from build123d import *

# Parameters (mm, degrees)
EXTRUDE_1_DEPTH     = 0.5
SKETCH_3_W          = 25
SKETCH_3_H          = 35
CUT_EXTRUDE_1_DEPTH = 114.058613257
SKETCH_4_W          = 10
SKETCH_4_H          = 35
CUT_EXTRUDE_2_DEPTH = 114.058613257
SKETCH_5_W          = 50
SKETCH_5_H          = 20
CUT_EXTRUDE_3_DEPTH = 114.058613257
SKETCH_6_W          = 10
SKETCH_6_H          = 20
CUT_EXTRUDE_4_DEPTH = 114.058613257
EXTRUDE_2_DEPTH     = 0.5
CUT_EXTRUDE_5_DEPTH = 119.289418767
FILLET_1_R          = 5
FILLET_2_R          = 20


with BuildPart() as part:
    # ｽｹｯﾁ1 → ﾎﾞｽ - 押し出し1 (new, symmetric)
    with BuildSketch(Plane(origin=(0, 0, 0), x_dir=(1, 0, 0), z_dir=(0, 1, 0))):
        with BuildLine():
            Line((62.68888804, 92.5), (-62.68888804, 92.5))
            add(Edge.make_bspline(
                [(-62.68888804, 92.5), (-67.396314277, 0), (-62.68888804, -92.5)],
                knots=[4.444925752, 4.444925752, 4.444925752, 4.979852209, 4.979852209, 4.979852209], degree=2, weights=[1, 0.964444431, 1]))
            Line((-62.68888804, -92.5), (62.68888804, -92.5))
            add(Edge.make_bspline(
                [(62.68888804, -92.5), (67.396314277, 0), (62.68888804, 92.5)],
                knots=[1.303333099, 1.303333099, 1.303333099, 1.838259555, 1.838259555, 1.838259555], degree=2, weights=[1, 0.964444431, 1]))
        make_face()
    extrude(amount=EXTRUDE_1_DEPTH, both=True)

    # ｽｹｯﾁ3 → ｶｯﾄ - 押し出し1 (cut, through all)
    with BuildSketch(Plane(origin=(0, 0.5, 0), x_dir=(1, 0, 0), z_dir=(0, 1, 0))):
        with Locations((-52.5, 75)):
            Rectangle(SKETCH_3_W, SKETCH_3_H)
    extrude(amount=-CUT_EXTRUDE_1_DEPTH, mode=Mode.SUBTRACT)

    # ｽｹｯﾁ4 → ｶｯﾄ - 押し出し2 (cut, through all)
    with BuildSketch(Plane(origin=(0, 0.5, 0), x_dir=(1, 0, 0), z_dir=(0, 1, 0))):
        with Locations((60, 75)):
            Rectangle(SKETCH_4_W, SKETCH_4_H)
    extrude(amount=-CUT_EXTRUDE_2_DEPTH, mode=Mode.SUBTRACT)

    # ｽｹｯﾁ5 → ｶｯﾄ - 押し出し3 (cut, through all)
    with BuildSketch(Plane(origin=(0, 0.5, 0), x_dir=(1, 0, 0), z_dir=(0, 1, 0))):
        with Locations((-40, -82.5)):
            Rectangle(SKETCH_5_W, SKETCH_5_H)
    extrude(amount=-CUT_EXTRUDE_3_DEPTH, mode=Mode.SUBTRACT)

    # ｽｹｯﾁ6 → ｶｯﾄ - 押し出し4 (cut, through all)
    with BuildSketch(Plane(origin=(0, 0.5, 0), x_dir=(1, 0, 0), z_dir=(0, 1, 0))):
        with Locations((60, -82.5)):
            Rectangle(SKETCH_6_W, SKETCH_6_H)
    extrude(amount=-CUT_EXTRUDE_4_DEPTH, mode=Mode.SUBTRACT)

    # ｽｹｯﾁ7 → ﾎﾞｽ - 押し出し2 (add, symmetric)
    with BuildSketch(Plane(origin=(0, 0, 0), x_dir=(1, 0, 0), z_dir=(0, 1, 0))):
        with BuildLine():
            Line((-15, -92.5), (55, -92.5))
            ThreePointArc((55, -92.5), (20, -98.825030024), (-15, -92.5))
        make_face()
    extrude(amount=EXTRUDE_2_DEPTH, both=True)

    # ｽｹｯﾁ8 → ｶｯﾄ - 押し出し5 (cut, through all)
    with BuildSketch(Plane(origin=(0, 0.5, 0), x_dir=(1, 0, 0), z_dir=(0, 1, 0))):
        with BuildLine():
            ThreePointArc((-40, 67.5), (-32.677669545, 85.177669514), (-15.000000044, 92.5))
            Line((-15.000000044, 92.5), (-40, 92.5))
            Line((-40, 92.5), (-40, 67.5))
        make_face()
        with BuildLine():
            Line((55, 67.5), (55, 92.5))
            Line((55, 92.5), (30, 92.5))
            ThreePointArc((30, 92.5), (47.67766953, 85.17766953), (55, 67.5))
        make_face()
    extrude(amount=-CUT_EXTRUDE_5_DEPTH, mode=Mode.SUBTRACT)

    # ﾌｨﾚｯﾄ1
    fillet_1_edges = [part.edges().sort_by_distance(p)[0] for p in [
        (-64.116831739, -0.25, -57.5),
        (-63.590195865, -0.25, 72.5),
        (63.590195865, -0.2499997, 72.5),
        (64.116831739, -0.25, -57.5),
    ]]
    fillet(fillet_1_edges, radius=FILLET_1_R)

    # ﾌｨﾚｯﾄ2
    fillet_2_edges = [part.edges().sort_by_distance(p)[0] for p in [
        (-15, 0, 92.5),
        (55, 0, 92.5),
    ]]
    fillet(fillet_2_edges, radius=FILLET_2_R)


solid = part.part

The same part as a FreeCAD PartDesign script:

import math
import FreeCAD as App
import Part
import Sketcher
from FreeCAD import Vector
Q = App.Units.Quantity


def edges_at(feature, points):
    """Names of the edges that pass closest to the given points."""
    edges = feature.Shape.Edges
    near = lambda p: min(range(len(edges)), key=lambda i: edges[i].distToShape(Part.Vertex(*p))[0])
    return sorted({f"Edge{near(p) + 1}" for p in points})


def add_polygon(sketch, points):
    """Adds a closed chain of lines whose ends are joined by coincident constraints."""
    first, n = sketch.GeometryCount, len(points)
    for a, b in zip(points, points[1:] + points[:1]):
        sketch.addGeometry(Part.LineSegment(App.Vector(*a, 0), App.Vector(*b, 0)), False)
    for i in range(n):
        sketch.addConstraint(Sketcher.Constraint("Coincident", first + i, 2, first + (i + 1) % n, 1))

doc = App.newDocument("Part")
params = doc.addObject("Spreadsheet::Sheet", "Params")
for row, (alias, value) in enumerate([
    ("pad1_length", "1 mm"),
    ("sketch2_width", "25 mm"),
    ("sketch2_height", "35 mm"),
    ("sketch3_width", "10 mm"),
    ("sketch3_height", "35 mm"),
    ("sketch4_width", "50 mm"),
    ("sketch4_height", "20 mm"),
    ("sketch5_width", "10 mm"),
    ("sketch5_height", "20 mm"),
    ("sketch6_radius", "100 mm"),
    ("sketch6_width", "70 mm"),
    ("pad2_length", "1 mm"),
    ("sketch7_radius", "25 mm"),
    ("fillet_radius", "5 mm"),
    ("fillet2_radius", "20 mm"),
], start=1):
    params.set(f"A{row}", alias)
    params.set(f"B{row}", "=" + value)
    params.setAlias(f"B{row}", alias)

body = doc.addObject("PartDesign::Body", "Body")

sketch1 = body.newObject("Sketcher::SketchObject", "Sketch")
sketch1.AttachmentSupport = (doc.getObject("XZ_Plane"), [""])
sketch1.MapMode = "FlatFace"
sketch1.addGeometry([
    Part.LineSegment(Vector(62.688888, -92.5, 0), Vector(-62.688888, -92.5, 0)),
    Part.BSplineCurve([Vector(-62.688888, -92.5, 0), Vector(-67.396314, 0, 0), Vector(-62.688888, 92.5, 0)], [3, 3], [4.444925752, 4.979852209], False, 2, [1, 0.964444431, 1], False),
    Part.LineSegment(Vector(-62.688888, 92.5, 0), Vector(62.688888, 92.5, 0)),
    Part.BSplineCurve([Vector(62.688888, 92.5, 0), Vector(67.396314, 0, 0), Vector(62.688888, -92.5, 0)], [3, 3], [1.303333099, 1.838259555], False, 2, [1, 0.964444431, 1], False),
], False)
sketch1.addConstraint([
    Sketcher.Constraint("Block", 1),
    Sketcher.Constraint("Block", 3),
    Sketcher.Constraint("Coincident", 0, 2, 1, 1),
    Sketcher.Constraint("Coincident", 1, 2, 2, 1),
    Sketcher.Constraint("Coincident", 2, 2, 3, 1),
    Sketcher.Constraint("Coincident", 3, 2, 0, 1),
])
pad1 = body.newObject("PartDesign::Pad", "Pad")
pad1.Profile = sketch1
pad1.setExpression("Length", "Params.pad1_length")
pad1.Midplane = True

sketch2 = body.newObject("Sketcher::SketchObject", "Sketch001")
sketch2.AttachmentSupport = (doc.getObject("XZ_Plane"), [""])
sketch2.MapMode = "FlatFace"
sketch2.AttachmentOffset = App.Placement(Vector(0, 0, -0.5), App.Rotation())
add_polygon(sketch2, [(-65, -92), (-65, -58), (-40, -58), (-40, -92)])
sketch2.addConstraint([
    Sketcher.Constraint("Vertical", 0),
    Sketcher.Constraint("Horizontal", 1),
    Sketcher.Constraint("Vertical", 2),
    Sketcher.Constraint("Horizontal", 3),
    Sketcher.Constraint("DistanceX", 1, 1, 1, 2, Q("25 mm")),
    Sketcher.Constraint("DistanceY", 0, 1, 0, 2, Q("35 mm")),
    Sketcher.Constraint("DistanceX", 0, 2, -1, 1, Q("65 mm")),
    Sketcher.Constraint("DistanceY", 0, 2, -1, 1, Q("57.5 mm")),
])
sketch2.setExpression("Constraints[8]", "Params.sketch2_width")
sketch2.setExpression("Constraints[9]", "Params.sketch2_height")
pocket1 = body.newObject("PartDesign::Pocket", "Pocket")
pocket1.Profile = sketch2
pocket1.Type = "ThroughAll"
pocket1.Reversed = True

sketch3 = body.newObject("Sketcher::SketchObject", "Sketch002")
sketch3.AttachmentSupport = (doc.getObject("XZ_Plane"), [""])
sketch3.MapMode = "FlatFace"
sketch3.AttachmentOffset = App.Placement(Vector(0, 0, -0.5), App.Rotation())
add_polygon(sketch3, [(55, -92), (55, -58), (65, -58), (65, -92)])
sketch3.addConstraint([
    Sketcher.Constraint("Vertical", 0),
    Sketcher.Constraint("Horizontal", 1),
    Sketcher.Constraint("Vertical", 2),
    Sketcher.Constraint("Horizontal", 3),
    Sketcher.Constraint("DistanceX", 1, 1, 1, 2, Q("10 mm")),
    Sketcher.Constraint("DistanceY", 0, 1, 0, 2, Q("35 mm")),
    Sketcher.Constraint("DistanceX", -1, 1, 0, 2, Q("55 mm")),
    Sketcher.Constraint("DistanceY", 0, 2, -1, 1, Q("57.5 mm")),
])
sketch3.setExpression("Constraints[8]", "Params.sketch3_width")
sketch3.setExpression("Constraints[9]", "Params.sketch3_height")
pocket2 = body.newObject("PartDesign::Pocket", "Pocket001")
pocket2.Profile = sketch3
pocket2.Type = "ThroughAll"
pocket2.Reversed = True

sketch4 = body.newObject("Sketcher::SketchObject", "Sketch003")
sketch4.AttachmentSupport = (doc.getObject("XZ_Plane"), [""])
sketch4.MapMode = "FlatFace"
sketch4.AttachmentOffset = App.Placement(Vector(0, 0, -0.5), App.Rotation())
add_polygon(sketch4, [(-65, 72), (-65, 92), (-15, 92), (-15, 72)])
sketch4.addConstraint([
    Sketcher.Constraint("Vertical", 0),
    Sketcher.Constraint("Horizontal", 1),
    Sketcher.Constraint("Vertical", 2),
    Sketcher.Constraint("Horizontal", 3),
    Sketcher.Constraint("DistanceX", 1, 1, 1, 2, Q("50 mm")),
    Sketcher.Constraint("DistanceY", 0, 1, 0, 2, Q("20 mm")),
    Sketcher.Constraint("DistanceX", 0, 2, -1, 1, Q("65 mm")),
    Sketcher.Constraint("DistanceY", -1, 1, 0, 2, Q("92.5 mm")),
])
sketch4.setExpression("Constraints[8]", "Params.sketch4_width")
sketch4.setExpression("Constraints[9]", "Params.sketch4_height")
pocket3 = body.newObject("PartDesign::Pocket", "Pocket002")
pocket3.Profile = sketch4
pocket3.Type = "ThroughAll"
pocket3.Reversed = True

sketch5 = body.newObject("Sketcher::SketchObject", "Sketch004")
sketch5.AttachmentSupport = (doc.getObject("XZ_Plane"), [""])
sketch5.MapMode = "FlatFace"
sketch5.AttachmentOffset = App.Placement(Vector(0, 0, -0.5), App.Rotation())
add_polygon(sketch5, [(55, 72), (55, 92), (65, 92), (65, 72)])
sketch5.addConstraint([
    Sketcher.Constraint("Vertical", 0),
    Sketcher.Constraint("Horizontal", 1),
    Sketcher.Constraint("Vertical", 2),
    Sketcher.Constraint("Horizontal", 3),
    Sketcher.Constraint("DistanceX", 1, 1, 1, 2, Q("10 mm")),
    Sketcher.Constraint("DistanceY", 0, 1, 0, 2, Q("20 mm")),
    Sketcher.Constraint("DistanceX", -1, 1, 0, 2, Q("55 mm")),
    Sketcher.Constraint("DistanceY", -1, 1, 0, 2, Q("92.5 mm")),
])
sketch5.setExpression("Constraints[8]", "Params.sketch5_width")
sketch5.setExpression("Constraints[9]", "Params.sketch5_height")
pocket4 = body.newObject("PartDesign::Pocket", "Pocket003")
pocket4.Profile = sketch5
pocket4.Type = "ThroughAll"
pocket4.Reversed = True

sketch6 = body.newObject("Sketcher::SketchObject", "Sketch005")
sketch6.AttachmentSupport = (doc.getObject("XZ_Plane"), [""])
sketch6.MapMode = "FlatFace"
sketch6.addGeometry([
    Part.LineSegment(Vector(55, 92, 0), Vector(-15, 92, 0)),
    Part.ArcOfCircle(Part.Circle(Vector(20, -1, 0), Vector(0, 0, 1), 100), math.radians(70), math.radians(110)),
], False)
sketch6.addConstraint([
    Sketcher.Constraint("Coincident", 0, 1, 1, 1),
    Sketcher.Constraint("Coincident", 1, 2, 0, 2),
    Sketcher.Constraint("Horizontal", 0),
    Sketcher.Constraint("Radius", 1, Q("100 mm")),
    Sketcher.Constraint("DistanceX", 0, 2, 0, 1, Q("70 mm")),
    Sketcher.Constraint("DistanceX", -1, 1, 1, 3, Q("20 mm")),
    Sketcher.Constraint("DistanceY", -1, 1, 0, 1, Q("92.5 mm")),
])
sketch6.setExpression("Constraints[3]", "Params.sketch6_radius")
sketch6.setExpression("Constraints[4]", "Params.sketch6_width")
pad2 = body.newObject("PartDesign::Pad", "Pad001")
pad2.Profile = sketch6
pad2.setExpression("Length", "Params.pad2_length")
pad2.Midplane = True

sketch7 = body.newObject("Sketcher::SketchObject", "Sketch006")
sketch7.AttachmentSupport = (doc.getObject("XZ_Plane"), [""])
sketch7.MapMode = "FlatFace"
sketch7.AttachmentOffset = App.Placement(Vector(0, 0, -0.5), App.Rotation())
sketch7.addGeometry([
    Part.ArcOfCircle(Part.Circle(Vector(-15, -67, 0), Vector(0, 0, 1), 25), math.radians(-180), math.radians(-90)),
    Part.LineSegment(Vector(-15, -92, 0), Vector(-40, -92, 0)),
    Part.LineSegment(Vector(-40, -92, 0), Vector(-40, -68, 0)),
    Part.LineSegment(Vector(55, -68, 0), Vector(55, -92, 0)),
    Part.LineSegment(Vector(55, -92, 0), Vector(30, -92, 0)),
    Part.ArcOfCircle(Part.Circle(Vector(30, -68, 0), Vector(0, 0, 1), 25), math.radians(-90), math.radians(0)),
], False)
sketch7.addConstraint([
    Sketcher.Constraint("Tangent", 0, 2, 1, 1),
    Sketcher.Constraint("Coincident", 1, 2, 2, 1),
    Sketcher.Constraint("Tangent", 2, 2, 0, 1),
    Sketcher.Constraint("Coincident", 3, 2, 4, 1),
    Sketcher.Constraint("Tangent", 4, 2, 5, 1),
    Sketcher.Constraint("Tangent", 5, 2, 3, 1),
    Sketcher.Constraint("Horizontal", 1),
    Sketcher.Constraint("Vertical", 2),
    Sketcher.Constraint("Vertical", 3),
    Sketcher.Constraint("Horizontal", 4),
    Sketcher.Constraint("Equal", 0, 5),
    Sketcher.Constraint("Horizontal", 0, 3, 5, 3),
    Sketcher.Constraint("Radius", 0, Q("25 mm")),
    Sketcher.Constraint("DistanceX", 0, 3, -1, 1, Q("15 mm")),
    Sketcher.Constraint("DistanceX", -1, 1, 5, 3, Q("30 mm")),
    Sketcher.Constraint("DistanceY", 0, 3, -1, 1, Q("67.5 mm")),
])
sketch7.setExpression("Constraints[12]", "Params.sketch7_radius")
pocket5 = body.newObject("PartDesign::Pocket", "Pocket004")
pocket5.Profile = sketch7
pocket5.Type = "ThroughAll"
pocket5.Reversed = True
doc.recompute()

fillet = body.newObject("PartDesign::Fillet", "Fillet")
fillet.Base = (pocket5, edges_at(pocket5, [
    (-64.117, -0.25, -57.5),
    (-63.59, -0.25, 72.5),
    (63.59, -0.25, 72.5),
    (64.117, -0.25, -57.5),
]))
fillet.setExpression("Radius", "Params.fillet_radius")
doc.recompute()

fillet2 = body.newObject("PartDesign::Fillet", "Fillet001")
fillet2.Base = (fillet, edges_at(fillet, [(-15, 0, 92.5), (55, 0, 92.5)]))
fillet2.setExpression("Radius", "Params.fillet2_radius")

doc.recompute()
